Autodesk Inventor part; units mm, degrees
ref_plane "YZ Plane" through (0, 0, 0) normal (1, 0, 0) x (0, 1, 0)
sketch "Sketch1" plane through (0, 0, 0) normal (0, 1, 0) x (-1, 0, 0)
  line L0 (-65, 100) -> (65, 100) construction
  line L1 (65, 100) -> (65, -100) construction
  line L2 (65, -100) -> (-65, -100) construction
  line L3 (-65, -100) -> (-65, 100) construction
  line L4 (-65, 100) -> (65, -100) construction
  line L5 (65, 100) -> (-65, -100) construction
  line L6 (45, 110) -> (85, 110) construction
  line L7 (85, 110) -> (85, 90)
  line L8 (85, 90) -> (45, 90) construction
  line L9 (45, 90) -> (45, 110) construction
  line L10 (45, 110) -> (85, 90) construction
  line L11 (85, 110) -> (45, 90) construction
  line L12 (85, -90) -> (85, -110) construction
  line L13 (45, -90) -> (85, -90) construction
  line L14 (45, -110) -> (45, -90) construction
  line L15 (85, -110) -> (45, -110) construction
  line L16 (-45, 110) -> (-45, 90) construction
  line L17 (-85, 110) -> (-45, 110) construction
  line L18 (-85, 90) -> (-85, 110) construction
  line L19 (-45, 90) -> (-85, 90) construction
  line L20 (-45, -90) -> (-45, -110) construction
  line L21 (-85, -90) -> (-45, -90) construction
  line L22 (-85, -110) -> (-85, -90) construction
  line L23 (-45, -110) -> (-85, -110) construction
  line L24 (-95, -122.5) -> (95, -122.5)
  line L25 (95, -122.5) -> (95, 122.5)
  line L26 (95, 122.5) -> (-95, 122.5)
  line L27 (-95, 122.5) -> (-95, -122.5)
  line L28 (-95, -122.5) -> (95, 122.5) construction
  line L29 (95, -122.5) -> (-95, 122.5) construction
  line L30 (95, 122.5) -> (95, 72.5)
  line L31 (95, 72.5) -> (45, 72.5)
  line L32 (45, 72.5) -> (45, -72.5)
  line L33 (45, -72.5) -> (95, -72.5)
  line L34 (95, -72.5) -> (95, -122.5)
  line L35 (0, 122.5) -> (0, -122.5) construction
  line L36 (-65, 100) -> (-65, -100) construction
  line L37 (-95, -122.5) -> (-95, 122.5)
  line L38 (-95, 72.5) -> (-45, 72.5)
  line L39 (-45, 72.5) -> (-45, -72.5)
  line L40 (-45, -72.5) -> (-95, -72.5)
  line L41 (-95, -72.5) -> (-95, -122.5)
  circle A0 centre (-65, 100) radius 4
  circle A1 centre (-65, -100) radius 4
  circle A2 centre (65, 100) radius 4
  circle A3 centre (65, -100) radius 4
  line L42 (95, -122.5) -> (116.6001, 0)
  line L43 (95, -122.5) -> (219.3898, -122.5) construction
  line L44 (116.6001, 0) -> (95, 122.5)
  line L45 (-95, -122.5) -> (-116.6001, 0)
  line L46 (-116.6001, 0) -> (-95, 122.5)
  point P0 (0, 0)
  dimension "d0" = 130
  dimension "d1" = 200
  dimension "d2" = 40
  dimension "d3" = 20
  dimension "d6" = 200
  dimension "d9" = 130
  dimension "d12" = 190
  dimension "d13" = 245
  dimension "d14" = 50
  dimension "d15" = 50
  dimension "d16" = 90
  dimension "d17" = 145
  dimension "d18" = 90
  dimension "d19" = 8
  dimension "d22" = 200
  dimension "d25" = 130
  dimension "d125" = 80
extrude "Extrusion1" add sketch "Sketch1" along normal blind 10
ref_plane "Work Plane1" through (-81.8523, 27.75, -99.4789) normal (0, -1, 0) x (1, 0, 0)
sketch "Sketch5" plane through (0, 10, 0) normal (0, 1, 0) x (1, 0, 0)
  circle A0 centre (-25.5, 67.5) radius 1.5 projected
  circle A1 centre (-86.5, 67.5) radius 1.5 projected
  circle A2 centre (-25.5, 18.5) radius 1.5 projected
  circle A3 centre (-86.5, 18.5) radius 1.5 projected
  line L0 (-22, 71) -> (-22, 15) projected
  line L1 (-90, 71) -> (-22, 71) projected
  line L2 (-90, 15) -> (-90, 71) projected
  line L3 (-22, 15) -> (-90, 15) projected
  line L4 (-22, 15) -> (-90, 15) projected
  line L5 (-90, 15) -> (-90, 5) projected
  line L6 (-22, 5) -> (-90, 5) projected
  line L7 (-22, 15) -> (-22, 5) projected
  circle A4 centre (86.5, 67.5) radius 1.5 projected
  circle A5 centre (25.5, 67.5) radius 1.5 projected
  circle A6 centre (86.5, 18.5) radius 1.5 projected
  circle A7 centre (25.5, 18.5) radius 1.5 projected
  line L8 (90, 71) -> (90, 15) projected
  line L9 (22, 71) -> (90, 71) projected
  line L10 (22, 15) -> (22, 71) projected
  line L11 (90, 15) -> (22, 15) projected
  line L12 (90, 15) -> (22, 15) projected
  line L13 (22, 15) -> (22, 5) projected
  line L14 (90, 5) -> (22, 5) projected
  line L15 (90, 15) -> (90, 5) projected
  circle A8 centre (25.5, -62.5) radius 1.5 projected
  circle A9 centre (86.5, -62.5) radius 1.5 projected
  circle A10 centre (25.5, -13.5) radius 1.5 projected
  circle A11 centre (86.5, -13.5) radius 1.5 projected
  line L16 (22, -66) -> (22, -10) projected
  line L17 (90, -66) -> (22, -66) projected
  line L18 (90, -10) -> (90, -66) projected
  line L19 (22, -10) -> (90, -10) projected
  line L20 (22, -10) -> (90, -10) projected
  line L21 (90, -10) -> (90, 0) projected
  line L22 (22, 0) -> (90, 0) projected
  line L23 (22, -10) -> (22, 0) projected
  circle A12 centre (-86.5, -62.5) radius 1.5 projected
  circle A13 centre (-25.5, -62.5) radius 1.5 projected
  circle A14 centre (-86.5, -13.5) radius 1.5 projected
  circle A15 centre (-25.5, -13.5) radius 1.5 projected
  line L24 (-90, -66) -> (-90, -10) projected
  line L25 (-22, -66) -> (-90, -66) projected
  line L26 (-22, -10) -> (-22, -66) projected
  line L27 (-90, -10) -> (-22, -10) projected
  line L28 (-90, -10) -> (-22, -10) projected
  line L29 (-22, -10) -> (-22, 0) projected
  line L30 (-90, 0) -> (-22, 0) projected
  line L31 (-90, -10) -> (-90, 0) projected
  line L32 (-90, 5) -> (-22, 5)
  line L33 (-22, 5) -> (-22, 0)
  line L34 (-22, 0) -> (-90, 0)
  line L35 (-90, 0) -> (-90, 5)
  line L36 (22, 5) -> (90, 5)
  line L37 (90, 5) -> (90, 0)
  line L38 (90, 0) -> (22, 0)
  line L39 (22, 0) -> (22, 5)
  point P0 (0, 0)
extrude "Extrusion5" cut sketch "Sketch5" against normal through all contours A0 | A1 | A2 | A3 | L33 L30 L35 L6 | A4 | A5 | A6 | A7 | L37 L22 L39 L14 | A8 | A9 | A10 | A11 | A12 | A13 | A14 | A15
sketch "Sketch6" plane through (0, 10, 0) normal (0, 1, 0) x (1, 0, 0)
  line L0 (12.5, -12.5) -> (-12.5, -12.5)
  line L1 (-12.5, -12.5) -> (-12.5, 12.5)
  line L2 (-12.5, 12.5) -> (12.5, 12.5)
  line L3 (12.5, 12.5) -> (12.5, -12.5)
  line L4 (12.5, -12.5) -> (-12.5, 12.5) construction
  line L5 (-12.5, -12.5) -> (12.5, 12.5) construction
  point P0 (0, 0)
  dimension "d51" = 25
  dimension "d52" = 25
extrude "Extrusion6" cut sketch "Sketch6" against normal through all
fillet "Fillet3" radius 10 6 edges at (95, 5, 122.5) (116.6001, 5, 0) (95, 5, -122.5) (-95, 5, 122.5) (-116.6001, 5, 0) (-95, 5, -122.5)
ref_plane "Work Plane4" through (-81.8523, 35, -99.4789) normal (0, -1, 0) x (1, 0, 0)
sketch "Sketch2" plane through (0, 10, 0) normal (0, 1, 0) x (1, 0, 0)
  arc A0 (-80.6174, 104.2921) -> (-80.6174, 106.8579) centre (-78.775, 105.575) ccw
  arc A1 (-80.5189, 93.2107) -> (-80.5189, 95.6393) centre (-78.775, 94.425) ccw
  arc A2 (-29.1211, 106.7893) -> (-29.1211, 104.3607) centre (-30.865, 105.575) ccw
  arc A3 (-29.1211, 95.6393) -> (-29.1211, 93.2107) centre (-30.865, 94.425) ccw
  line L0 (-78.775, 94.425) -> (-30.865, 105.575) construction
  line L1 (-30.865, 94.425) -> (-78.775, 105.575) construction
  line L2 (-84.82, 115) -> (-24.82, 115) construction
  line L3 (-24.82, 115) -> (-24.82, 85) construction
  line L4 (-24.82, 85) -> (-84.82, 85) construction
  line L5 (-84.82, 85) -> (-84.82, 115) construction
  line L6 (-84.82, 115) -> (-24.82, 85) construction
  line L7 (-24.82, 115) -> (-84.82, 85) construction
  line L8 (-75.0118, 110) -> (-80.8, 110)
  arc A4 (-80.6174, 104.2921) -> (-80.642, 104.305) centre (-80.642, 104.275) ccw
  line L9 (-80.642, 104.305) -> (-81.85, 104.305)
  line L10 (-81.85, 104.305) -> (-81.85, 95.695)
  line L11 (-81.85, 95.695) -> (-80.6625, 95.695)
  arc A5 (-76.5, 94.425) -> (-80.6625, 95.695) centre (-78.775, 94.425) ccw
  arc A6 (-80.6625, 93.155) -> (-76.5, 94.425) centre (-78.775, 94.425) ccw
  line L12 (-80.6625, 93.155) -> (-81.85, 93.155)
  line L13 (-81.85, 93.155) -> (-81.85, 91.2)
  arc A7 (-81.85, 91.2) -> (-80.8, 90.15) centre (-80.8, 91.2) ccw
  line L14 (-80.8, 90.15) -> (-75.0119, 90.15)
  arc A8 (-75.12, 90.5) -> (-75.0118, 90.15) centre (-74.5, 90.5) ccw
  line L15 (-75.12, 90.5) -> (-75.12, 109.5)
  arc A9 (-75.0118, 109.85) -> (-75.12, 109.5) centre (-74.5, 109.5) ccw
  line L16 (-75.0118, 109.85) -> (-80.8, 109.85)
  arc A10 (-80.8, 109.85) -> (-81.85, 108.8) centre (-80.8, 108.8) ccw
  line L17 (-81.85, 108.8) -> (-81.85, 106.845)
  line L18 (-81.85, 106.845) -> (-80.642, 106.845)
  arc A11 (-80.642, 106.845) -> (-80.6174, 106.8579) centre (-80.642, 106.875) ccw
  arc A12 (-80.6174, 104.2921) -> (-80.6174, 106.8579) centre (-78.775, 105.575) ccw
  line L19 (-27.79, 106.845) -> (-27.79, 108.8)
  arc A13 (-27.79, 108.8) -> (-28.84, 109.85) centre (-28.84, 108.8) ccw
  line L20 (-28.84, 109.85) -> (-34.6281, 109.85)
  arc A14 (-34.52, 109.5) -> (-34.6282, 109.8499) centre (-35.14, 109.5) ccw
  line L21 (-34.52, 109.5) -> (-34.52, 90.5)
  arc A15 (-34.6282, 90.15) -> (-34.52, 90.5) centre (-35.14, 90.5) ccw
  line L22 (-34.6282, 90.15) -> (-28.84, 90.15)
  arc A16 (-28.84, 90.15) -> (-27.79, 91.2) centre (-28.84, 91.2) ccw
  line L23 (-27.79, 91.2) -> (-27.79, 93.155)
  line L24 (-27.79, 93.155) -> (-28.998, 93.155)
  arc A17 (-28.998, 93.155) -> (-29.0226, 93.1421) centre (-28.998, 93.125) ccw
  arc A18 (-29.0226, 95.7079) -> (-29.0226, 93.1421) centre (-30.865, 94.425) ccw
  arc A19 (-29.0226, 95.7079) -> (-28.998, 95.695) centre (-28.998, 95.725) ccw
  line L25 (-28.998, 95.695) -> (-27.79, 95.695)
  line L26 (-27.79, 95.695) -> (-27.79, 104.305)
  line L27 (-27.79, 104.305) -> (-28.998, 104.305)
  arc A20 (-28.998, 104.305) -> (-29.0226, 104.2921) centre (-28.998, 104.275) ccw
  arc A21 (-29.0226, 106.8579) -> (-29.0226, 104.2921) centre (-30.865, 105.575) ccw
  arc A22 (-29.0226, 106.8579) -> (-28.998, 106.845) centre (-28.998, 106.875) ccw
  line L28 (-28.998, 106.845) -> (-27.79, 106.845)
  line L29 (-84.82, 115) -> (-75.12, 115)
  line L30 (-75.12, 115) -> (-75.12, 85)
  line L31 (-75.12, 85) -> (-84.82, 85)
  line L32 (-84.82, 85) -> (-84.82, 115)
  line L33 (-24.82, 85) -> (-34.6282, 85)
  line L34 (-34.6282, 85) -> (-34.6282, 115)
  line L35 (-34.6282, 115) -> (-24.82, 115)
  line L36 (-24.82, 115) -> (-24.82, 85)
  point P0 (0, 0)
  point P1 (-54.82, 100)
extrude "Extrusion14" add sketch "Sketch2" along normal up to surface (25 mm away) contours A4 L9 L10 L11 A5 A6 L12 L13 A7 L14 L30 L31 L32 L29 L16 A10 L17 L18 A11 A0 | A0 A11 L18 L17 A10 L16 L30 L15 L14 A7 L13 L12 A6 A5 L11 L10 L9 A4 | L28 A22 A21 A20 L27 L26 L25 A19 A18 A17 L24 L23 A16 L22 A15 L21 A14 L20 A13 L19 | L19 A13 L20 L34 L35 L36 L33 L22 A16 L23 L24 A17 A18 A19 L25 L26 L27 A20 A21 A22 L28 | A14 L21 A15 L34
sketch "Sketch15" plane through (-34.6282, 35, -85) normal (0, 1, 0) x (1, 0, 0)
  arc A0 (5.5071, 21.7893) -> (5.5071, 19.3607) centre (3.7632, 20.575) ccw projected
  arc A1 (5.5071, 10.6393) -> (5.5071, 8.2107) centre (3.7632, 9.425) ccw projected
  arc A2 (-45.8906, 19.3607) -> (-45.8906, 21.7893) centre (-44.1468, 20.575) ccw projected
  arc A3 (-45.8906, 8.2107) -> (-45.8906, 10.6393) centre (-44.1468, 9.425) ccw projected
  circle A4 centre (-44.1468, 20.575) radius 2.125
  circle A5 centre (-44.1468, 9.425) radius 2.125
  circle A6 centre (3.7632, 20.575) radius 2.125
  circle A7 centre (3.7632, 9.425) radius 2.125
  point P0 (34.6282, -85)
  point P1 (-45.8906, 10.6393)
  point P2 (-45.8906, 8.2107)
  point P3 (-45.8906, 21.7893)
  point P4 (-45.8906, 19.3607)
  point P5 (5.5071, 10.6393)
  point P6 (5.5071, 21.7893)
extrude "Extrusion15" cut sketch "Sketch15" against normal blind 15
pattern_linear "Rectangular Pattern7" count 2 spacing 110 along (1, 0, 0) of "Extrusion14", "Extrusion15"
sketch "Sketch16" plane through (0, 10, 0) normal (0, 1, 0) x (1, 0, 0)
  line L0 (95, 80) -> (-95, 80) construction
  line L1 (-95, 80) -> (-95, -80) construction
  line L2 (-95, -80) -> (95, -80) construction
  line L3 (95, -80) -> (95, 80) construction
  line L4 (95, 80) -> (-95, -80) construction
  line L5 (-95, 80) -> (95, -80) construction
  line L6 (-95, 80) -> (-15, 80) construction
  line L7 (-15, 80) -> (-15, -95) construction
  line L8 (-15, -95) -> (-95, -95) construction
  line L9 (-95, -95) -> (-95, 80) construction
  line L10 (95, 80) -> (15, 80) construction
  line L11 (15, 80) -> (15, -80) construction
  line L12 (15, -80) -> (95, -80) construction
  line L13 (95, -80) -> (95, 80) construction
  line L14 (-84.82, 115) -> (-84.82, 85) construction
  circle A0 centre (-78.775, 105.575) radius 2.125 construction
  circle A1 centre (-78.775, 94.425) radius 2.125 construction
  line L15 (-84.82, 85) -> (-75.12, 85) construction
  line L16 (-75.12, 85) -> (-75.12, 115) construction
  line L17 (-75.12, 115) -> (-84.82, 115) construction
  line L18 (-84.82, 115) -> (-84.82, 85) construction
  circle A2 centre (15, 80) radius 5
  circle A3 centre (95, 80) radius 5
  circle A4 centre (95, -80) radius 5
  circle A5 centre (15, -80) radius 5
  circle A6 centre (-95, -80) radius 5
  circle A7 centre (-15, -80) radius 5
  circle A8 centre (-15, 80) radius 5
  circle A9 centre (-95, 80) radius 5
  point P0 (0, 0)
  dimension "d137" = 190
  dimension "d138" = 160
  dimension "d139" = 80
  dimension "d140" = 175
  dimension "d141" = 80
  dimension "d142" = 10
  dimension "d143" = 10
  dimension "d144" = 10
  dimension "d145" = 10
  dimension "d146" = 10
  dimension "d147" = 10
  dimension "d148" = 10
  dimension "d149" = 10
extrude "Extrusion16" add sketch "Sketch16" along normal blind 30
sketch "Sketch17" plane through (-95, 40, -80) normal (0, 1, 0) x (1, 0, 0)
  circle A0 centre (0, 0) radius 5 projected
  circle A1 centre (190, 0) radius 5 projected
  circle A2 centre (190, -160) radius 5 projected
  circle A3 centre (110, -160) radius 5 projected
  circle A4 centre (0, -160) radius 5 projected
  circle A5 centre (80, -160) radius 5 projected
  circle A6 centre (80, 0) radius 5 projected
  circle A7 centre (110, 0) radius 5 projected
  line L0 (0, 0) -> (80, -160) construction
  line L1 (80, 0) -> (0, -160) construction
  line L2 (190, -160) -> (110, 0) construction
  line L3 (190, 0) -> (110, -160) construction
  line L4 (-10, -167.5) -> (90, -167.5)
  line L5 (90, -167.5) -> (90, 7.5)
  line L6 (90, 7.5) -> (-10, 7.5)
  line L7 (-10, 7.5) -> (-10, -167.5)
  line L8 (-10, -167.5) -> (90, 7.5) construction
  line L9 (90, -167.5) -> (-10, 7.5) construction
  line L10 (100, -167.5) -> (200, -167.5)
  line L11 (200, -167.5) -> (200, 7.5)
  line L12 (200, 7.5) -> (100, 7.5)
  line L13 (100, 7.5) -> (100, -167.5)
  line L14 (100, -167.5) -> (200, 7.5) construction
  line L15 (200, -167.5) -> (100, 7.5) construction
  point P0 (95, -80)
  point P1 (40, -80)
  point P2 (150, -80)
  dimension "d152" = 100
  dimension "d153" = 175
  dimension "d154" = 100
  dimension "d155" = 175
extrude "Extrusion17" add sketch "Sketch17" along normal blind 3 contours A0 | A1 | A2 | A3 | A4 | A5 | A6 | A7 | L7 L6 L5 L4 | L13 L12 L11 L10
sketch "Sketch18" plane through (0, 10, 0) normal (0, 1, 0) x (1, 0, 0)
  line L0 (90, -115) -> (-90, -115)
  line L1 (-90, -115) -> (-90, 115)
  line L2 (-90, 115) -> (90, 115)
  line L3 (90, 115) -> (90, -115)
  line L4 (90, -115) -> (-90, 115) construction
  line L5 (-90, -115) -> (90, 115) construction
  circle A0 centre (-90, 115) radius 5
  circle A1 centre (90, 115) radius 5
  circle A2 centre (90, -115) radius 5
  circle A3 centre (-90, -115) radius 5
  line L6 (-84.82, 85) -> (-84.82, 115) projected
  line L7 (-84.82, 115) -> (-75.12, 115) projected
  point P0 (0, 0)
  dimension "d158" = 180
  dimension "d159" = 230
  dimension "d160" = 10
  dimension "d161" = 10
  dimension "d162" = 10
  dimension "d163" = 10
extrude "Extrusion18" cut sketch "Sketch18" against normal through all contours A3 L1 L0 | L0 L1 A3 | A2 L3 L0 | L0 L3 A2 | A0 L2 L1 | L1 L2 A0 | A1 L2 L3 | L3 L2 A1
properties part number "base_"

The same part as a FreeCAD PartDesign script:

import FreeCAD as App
import Part
import Sketcher
Q = App.Units.Quantity


def edges_at(feature, points):
    """Names of the edges that pass closest to the given points."""
    edges = feature.Shape.Edges
    near = lambda p: min(range(len(edges)), key=lambda i: edges[i].distToShape(Part.Vertex(*p))[0])
    return sorted({f"Edge{near(p) + 1}" for p in points})

doc = App.newDocument("Part")
body = doc.addObject("PartDesign::Body", "Body")

# Sketch on XZ plane
sketch1 = body.newObject("Sketcher::SketchObject", "Sketch")
sketch1.AttachmentSupport = (doc.getObject("XZ_Plane"), [""])
sketch1.MapMode = "FlatFace"
sketch1.addGeometry(Part.LineSegment(App.Vector(-95, 122.5, 0), App.Vector(95, 122.5, 0)), False)
sketch1.addGeometry(Part.LineSegment(App.Vector(95, 122.5, 0), App.Vector(116.6001, 0, 0)), False)
sketch1.addGeometry(Part.LineSegment(App.Vector(116.6001, 0, 0), App.Vector(95, -122.5, 0)), False)
sketch1.addGeometry(Part.LineSegment(App.Vector(95, -122.5, 0), App.Vector(-95, -122.5, 0)), False)
sketch1.addGeometry(Part.LineSegment(App.Vector(-95, -122.5, 0), App.Vector(-116.6001, 0, 0)), False)
sketch1.addGeometry(Part.LineSegment(App.Vector(-116.6001, 0, 0), App.Vector(-95, 122.5, 0)), False)
sketch1.addGeometry(Part.Circle(App.Vector(65, -100, 0), App.Vector(0, 0, 1), 4), False)
sketch1.addGeometry(Part.Circle(App.Vector(-65, -100, 0), App.Vector(0, 0, 1), 4), False)
sketch1.addGeometry(Part.Circle(App.Vector(65, 100, 0), App.Vector(0, 0, 1), 4), False)
sketch1.addGeometry(Part.Circle(App.Vector(-65, 100, 0), App.Vector(0, 0, 1), 4), False)
sketch1.addConstraint(Sketcher.Constraint("Coincident", 0, 2, 1, 1))
sketch1.addConstraint(Sketcher.Constraint("Coincident", 1, 2, 2, 1))
sketch1.addConstraint(Sketcher.Constraint("Coincident", 2, 2, 3, 1))
sketch1.addConstraint(Sketcher.Constraint("Coincident", 3, 2, 4, 1))
sketch1.addConstraint(Sketcher.Constraint("Coincident", 4, 2, 5, 1))
sketch1.addConstraint(Sketcher.Constraint("Coincident", 5, 2, 0, 1))
sketch1.addConstraint(Sketcher.Constraint("Horizontal", 0))
sketch1.addConstraint(Sketcher.Constraint("Horizontal", 3))
sketch1.addConstraint(Sketcher.Constraint("Equal", 6, 7))
sketch1.addConstraint(Sketcher.Constraint("Equal", 7, 8))
sketch1.addConstraint(Sketcher.Constraint("Equal", 8, 9))
sketch1.addConstraint(Sketcher.Constraint("Symmetric", 7, 3, 8, 3, -1, 1))
sketch1.addConstraint(Sketcher.Constraint("Symmetric", 6, 3, 9, 3, -1, 1))
sketch1.addConstraint(Sketcher.Constraint("Symmetric", 0, 2, 3, 2, -1, 1))
sketch1.addConstraint(Sketcher.Constraint("Symmetric", 1, 2, 4, 2, -1, 1))
sketch1.addConstraint(Sketcher.Constraint("Symmetric", 6, 3, 7, 3, -2))
sketch1.addConstraint(Sketcher.Constraint("PointOnObject", 1, 2, -1))
sketch1.addConstraint(Sketcher.Constraint("Parallel", 2, 5))
sketch1.addConstraint(Sketcher.Constraint("Vertical", 0, 2, 2, 2))
sketch1.addConstraint(Sketcher.Constraint("Diameter", 6, Q("8 mm")))
sketch1.addConstraint(Sketcher.Constraint("DistanceX", 0, 1, 0, 2, Q("190 mm")))
sketch1.addConstraint(Sketcher.Constraint("Angle", 1, Q("-80 deg")))
sketch1.addConstraint(Sketcher.Constraint("DistanceX", 7, 3, 6, 3, Q("130 mm")))
sketch1.addConstraint(Sketcher.Constraint("DistanceY", 6, 3, 8, 3, Q("200 mm")))
sketch1.addConstraint(Sketcher.Constraint("DistanceY", 2, 2, 0, 2, Q("245 mm")))
pad1 = body.newObject("PartDesign::Pad", "Pad")
pad1.Profile = sketch1
pad1.Length = 10
pad1.Reversed = True

# Sketch on XZ plane
sketch2 = body.newObject("Sketcher::SketchObject", "Sketch001")
sketch2.AttachmentSupport = (doc.getObject("XZ_Plane"), [""])
sketch2.MapMode = "FlatFace"
sketch2.AttachmentOffset = App.Placement(App.Vector(0, 0, -10), App.Rotation())
sketch2.addGeometry(Part.Circle(App.Vector(-25.5, -67.5, 0), App.Vector(0, 0, 1), 1.5), False)
sketch2.addGeometry(Part.Circle(App.Vector(-86.5, -67.5, 0), App.Vector(0, 0, 1), 1.5), False)
sketch2.addGeometry(Part.Circle(App.Vector(-25.5, -18.5, 0), App.Vector(0, 0, 1), 1.5), False)
sketch2.addGeometry(Part.Circle(App.Vector(-86.5, -18.5, 0), App.Vector(0, 0, 1), 1.5), False)
sketch2.addGeometry(Part.LineSegment(App.Vector(-22, 0, 0), App.Vector(-22, -5, 0)), False)
sketch2.addGeometry(Part.LineSegment(App.Vector(-22, -5, 0), App.Vector(-90, -5, 0)), False)
sketch2.addGeometry(Part.LineSegment(App.Vector(-90, -5, 0), App.Vector(-90, 0, 0)), False)
sketch2.addGeometry(Part.LineSegment(App.Vector(-90, 0, 0), App.Vector(-22, 0, 0)), False)
sketch2.addGeometry(Part.Circle(App.Vector(86.5, -67.5, 0), App.Vector(0, 0, 1), 1.5), False)
sketch2.addGeometry(Part.Circle(App.Vector(25.5, -67.5, 0), App.Vector(0, 0, 1), 1.5), False)
sketch2.addGeometry(Part.Circle(App.Vector(86.5, -18.5, 0), App.Vector(0, 0, 1), 1.5), False)
sketch2.addGeometry(Part.Circle(App.Vector(25.5, -18.5, 0), App.Vector(0, 0, 1), 1.5), False)
sketch2.addGeometry(Part.LineSegment(App.Vector(90, 0, 0), App.Vector(90, -5, 0)), False)
sketch2.addGeometry(Part.LineSegment(App.Vector(90, -5, 0), App.Vector(22, -5, 0)), False)
sketch2.addGeometry(Part.LineSegment(App.Vector(22, -5, 0), App.Vector(22, 0, 0)), False)
sketch2.addGeometry(Part.LineSegment(App.Vector(22, 0, 0), App.Vector(90, 0, 0)), False)
sketch2.addGeometry(Part.Circle(App.Vector(25.5, 62.5, 0), App.Vector(0, 0, 1), 1.5), False)
sketch2.addGeometry(Part.Circle(App.Vector(86.5, 62.5, 0), App.Vector(0, 0, 1), 1.5), False)
sketch2.addGeometry(Part.Circle(App.Vector(25.5, 13.5, 0), App.Vector(0, 0, 1), 1.5), False)
sketch2.addGeometry(Part.Circle(App.Vector(86.5, 13.5, 0), App.Vector(0, 0, 1), 1.5), False)
sketch2.addGeometry(Part.Circle(App.Vector(-86.5, 62.5, 0), App.Vector(0, 0, 1), 1.5), False)
sketch2.addGeometry(Part.Circle(App.Vector(-25.5, 62.5, 0), App.Vector(0, 0, 1), 1.5), False)
sketch2.addGeometry(Part.Circle(App.Vector(-86.5, 13.5, 0), App.Vector(0, 0, 1), 1.5), False)
sketch2.addGeometry(Part.Circle(App.Vector(-25.5, 13.5, 0), App.Vector(0, 0, 1), 1.5), False)
sketch2.addConstraint(Sketcher.Constraint("Coincident", 4, 2, 5, 1))
sketch2.addConstraint(Sketcher.Constraint("Coincident", 5, 2, 6, 1))
sketch2.addConstraint(Sketcher.Constraint("Coincident", 6, 2, 7, 1))
sketch2.addConstraint(Sketcher.Constraint("Coincident", 7, 2, 4, 1))
sketch2.addConstraint(Sketcher.Constraint("Coincident", 12, 2, 13, 1))
sketch2.addConstraint(Sketcher.Constraint("Coincident", 13, 2, 14, 1))
sketch2.addConstraint(Sketcher.Constraint("Coincident", 14, 2, 15, 1))
sketch2.addConstraint(Sketcher.Constraint("Coincident", 15, 2, 12, 1))
sketch2.addConstraint(Sketcher.Constraint("Vertical", 4))
sketch2.addConstraint(Sketcher.Constraint("Horizontal", 5))
sketch2.addConstraint(Sketcher.Constraint("Vertical", 6))
sketch2.addConstraint(Sketcher.Constraint("Horizontal", 7))
sketch2.addConstraint(Sketcher.Constraint("Vertical", 12))
sketch2.addConstraint(Sketcher.Constraint("Horizontal", 13))
sketch2.addConstraint(Sketcher.Constraint("Vertical", 14))
sketch2.addConstraint(Sketcher.Constraint("Horizontal", 15))
sketch2.addConstraint(Sketcher.Constraint("Equal", 0, 1))
sketch2.addConstraint(Sketcher.Constraint("Equal", 1, 2))
sketch2.addConstraint(Sketcher.Constraint("Equal", 2, 3))
sketch2.addConstraint(Sketcher.Constraint("Equal", 3, 8))
sketch2.addConstraint(Sketcher.Constraint("Equal", 8, 9))
sketch2.addConstraint(Sketcher.Constraint("Equal", 9, 10))
sketch2.addConstraint(Sketcher.Constraint("Equal", 10, 11))
sketch2.addConstraint(Sketcher.Constraint("Equal", 11, 16))
sketch2.addConstraint(Sketcher.Constraint("Equal", 16, 17))
sketch2.addConstraint(Sketcher.Constraint("Equal", 17, 18))
sketch2.addConstraint(Sketcher.Constraint("Equal", 18, 19))
sketch2.addConstraint(Sketcher.Constraint("Equal", 19, 20))
sketch2.addConstraint(Sketcher.Constraint("Equal", 20, 21))
sketch2.addConstraint(Sketcher.Constraint("Equal", 21, 22))
sketch2.addConstraint(Sketcher.Constraint("Equal", 22, 23))
sketch2.addConstraint(Sketcher.Constraint("Symmetric", 7, 2, 14, 2, -1, 1))
sketch2.addConstraint(Sketcher.Constraint("Symmetric", 1, 3, 8, 3, -2))
sketch2.addConstraint(Sketcher.Constraint("Symmetric", 0, 3, 9, 3, -2))
sketch2.addConstraint(Sketcher.Constraint("Symmetric", 3, 3, 10, 3, -2))
sketch2.addConstraint(Sketcher.Constraint("Symmetric", 2, 3, 11, 3, -2))
sketch2.addConstraint(Sketcher.Constraint("Symmetric", 17, 3, 20, 3, -2))
sketch2.addConstraint(Sketcher.Constraint("Symmetric", 16, 3, 21, 3, -2))
sketch2.addConstraint(Sketcher.Constraint("Symmetric", 19, 3, 22, 3, -2))
sketch2.addConstraint(Sketcher.Constraint("Symmetric", 18, 3, 23, 3, -2))
sketch2.addConstraint(Sketcher.Constraint("Symmetric", 5, 2, 12, 2, -2))
sketch2.addConstraint(Sketcher.Constraint("PointOnObject", 6, 2, -1))
sketch2.addConstraint(Sketcher.Constraint("Horizontal", 0, 3, 1, 3))
sketch2.addConstraint(Sketcher.Constraint("Horizontal", 2, 3, 3, 3))
sketch2.addConstraint(Sketcher.Constraint("Horizontal", 16, 3, 17, 3))
sketch2.addConstraint(Sketcher.Constraint("Horizontal", 18, 3, 19, 3))
sketch2.addConstraint(Sketcher.Constraint("Vertical", 0, 3, 2, 3))
sketch2.addConstraint(Sketcher.Constraint("Vertical", 1, 3, 3, 3))
sketch2.addConstraint(Sketcher.Constraint("Vertical", 11, 3, 16, 3))
sketch2.addConstraint(Sketcher.Constraint("Vertical", 10, 3, 17, 3))
sketch2.addConstraint(Sketcher.Constraint("Vertical", 16, 3, 18, 3))
sketch2.addConstraint(Sketcher.Constraint("Vertical", 17, 3, 19, 3))
sketch2.addConstraint(Sketcher.Constraint("Diameter", 0, Q("3 mm")))
sketch2.addConstraint(Sketcher.Constraint("DistanceX", 5, 2, 5, 1, Q("68 mm")))
sketch2.addConstraint(Sketcher.Constraint("DistanceY", 4, 2, 4, 1, Q("5 mm")))
sketch2.addConstraint(Sketcher.Constraint("DistanceX", 4, 2, -1, 1, Q("22 mm")))
sketch2.addConstraint(Sketcher.Constraint("DistanceX", 1, 3, 0, 3, Q("61 mm")))
sketch2.addConstraint(Sketcher.Constraint("DistanceY", 0, 3, 2, 3, Q("49 mm")))
sketch2.addConstraint(Sketcher.Constraint("DistanceX", 0, 3, 8, 3, Q("112 mm")))
sketch2.addConstraint(Sketcher.Constraint("DistanceY", 11, 3, 16, 3, Q("81 mm")))
sketch2.addConstraint(Sketcher.Constraint("DistanceY", 11, 3, 18, 3, Q("32 mm")))
sketch2.addConstraint(Sketcher.Constraint("DistanceY", 0, 3, -1, 1, Q("67.5 mm")))
pocket1 = body.newObject("PartDesign::Pocket", "Pocket")
pocket1.Profile = sketch2
pocket1.Type = "ThroughAll"
pocket1.Reversed = True

# Sketch on XZ plane
sketch3 = body.newObject("Sketcher::SketchObject", "Sketch002")
sketch3.AttachmentSupport = (doc.getObject("XZ_Plane"), [""])
sketch3.MapMode = "FlatFace"
sketch3.AttachmentOffset = App.Placement(App.Vector(0, 0, -10), App.Rotation())
sketch3.addGeometry(Part.LineSegment(App.Vector(-12.5, 12.5, 0), App.Vector(12.5, 12.5, 0)), False)
sketch3.addGeometry(Part.LineSegment(App.Vector(12.5, 12.5, 0), App.Vector(12.5, -12.5, 0)), False)
sketch3.addGeometry(Part.LineSegment(App.Vector(12.5, -12.5, 0), App.Vector(-12.5, -12.5, 0)), False)
sketch3.addGeometry(Part.LineSegment(App.Vector(-12.5, -12.5, 0), App.Vector(-12.5, 12.5, 0)), False)
sketch3.addConstraint(Sketcher.Constraint("Coincident", 0, 2, 1, 1))
sketch3.addConstraint(Sketcher.Constraint("Coincident", 1, 2, 2, 1))
sketch3.addConstraint(Sketcher.Constraint("Coincident", 2, 2, 3, 1))
sketch3.addConstraint(Sketcher.Constraint("Coincident", 3, 2, 0, 1))
sketch3.addConstraint(Sketcher.Constraint("Horizontal", 0))
sketch3.addConstraint(Sketcher.Constraint("Vertical", 1))
sketch3.addConstraint(Sketcher.Constraint("Horizontal", 2))
sketch3.addConstraint(Sketcher.Constraint("Vertical", 3))
sketch3.addConstraint(Sketcher.Constraint("Symmetric", 0, 2, 2, 2, -1, 1))
sketch3.addConstraint(Sketcher.Constraint("Equal", 2, 1))
sketch3.addConstraint(Sketcher.Constraint("DistanceX", 0, 1, 0, 2, Q("25 mm")))
pocket2 = body.newObject("PartDesign::Pocket", "Pocket001")
pocket2.Profile = sketch3
pocket2.Type = "ThroughAll"
pocket2.Reversed = True
doc.recompute()

fillet = body.newObject("PartDesign::Fillet", "Fillet")
fillet.Base = (pocket2, edges_at(pocket2, [
    (95, 5, 122.5),
    (116.6, 5, 0),
    (95, 5, -122.5),
    (-95, 5, 122.5),
    (-116.6, 5, 0),
    (-95, 5, -122.5),
]))
fillet.Radius = 10

# Sketch on XZ plane
sketch4 = body.newObject("Sketcher::SketchObject", "Sketch003")
sketch4.AttachmentSupport = (doc.getObject("XZ_Plane"), [""])
sketch4.MapMode = "FlatFace"
sketch4.AttachmentOffset = App.Placement(App.Vector(0, 0, -10), App.Rotation())
sketch4.addGeometry(Part.LineSegment(App.Vector(-75.12, -85, 0), App.Vector(-75.12, -115, 0)), False)
sketch4.addGeometry(Part.LineSegment(App.Vector(-75.12, -115, 0), App.Vector(-84.82, -115, 0)), False)
sketch4.addGeometry(Part.LineSegment(App.Vector(-84.82, -115, 0), App.Vector(-84.82, -85, 0)), False)
sketch4.addGeometry(Part.LineSegment(App.Vector(-84.82, -85, 0), App.Vector(-75.12, -85, 0)), False)
sketch4.addGeometry(Part.LineSegment(App.Vector(-24.82, -85, 0), App.Vector(-24.82, -115, 0)), False)
sketch4.addGeometry(Part.LineSegment(App.Vector(-24.82, -115, 0), App.Vector(-34.6282, -115, 0)), False)
sketch4.addGeometry(Part.LineSegment(App.Vector(-34.6282, -115, 0), App.Vector(-34.6282, -85, 0)), False)
sketch4.addGeometry(Part.LineSegment(App.Vector(-34.6282, -85, 0), App.Vector(-24.82, -85, 0)), False)
sketch4.addConstraint(Sketcher.Constraint("Coincident", 0, 2, 1, 1))
sketch4.addConstraint(Sketcher.Constraint("Coincident", 1, 2, 2, 1))
sketch4.addConstraint(Sketcher.Constraint("Coincident", 2, 2, 3, 1))
sketch4.addConstraint(Sketcher.Constraint("Coincident", 3, 2, 0, 1))
sketch4.addConstraint(Sketcher.Constraint("Coincident", 4, 2, 5, 1))
sketch4.addConstraint(Sketcher.Constraint("Coincident", 5, 2, 6, 1))
sketch4.addConstraint(Sketcher.Constraint("Coincident", 6, 2, 7, 1))
sketch4.addConstraint(Sketcher.Constraint("Coincident", 7, 2, 4, 1))
sketch4.addConstraint(Sketcher.Constraint("Vertical", 0))
sketch4.addConstraint(Sketcher.Constraint("Horizontal", 1))
sketch4.addConstraint(Sketcher.Constraint("Vertical", 2))
sketch4.addConstraint(Sketcher.Constraint("Horizontal", 3))
sketch4.addConstraint(Sketcher.Constraint("Vertical", 4))
sketch4.addConstraint(Sketcher.Constraint("Horizontal", 5))
sketch4.addConstraint(Sketcher.Constraint("Vertical", 6))
sketch4.addConstraint(Sketcher.Constraint("Horizontal", 7))
sketch4.addConstraint(Sketcher.Constraint("Horizontal", 1, 2, 4, 2))
sketch4.addConstraint(Sketcher.Constraint("Horizontal", 3, 2, 6, 2))
sketch4.addConstraint(Sketcher.Constraint("DistanceY", 0, 2, 0, 1, Q("30 mm")))
sketch4.addConstraint(Sketcher.Constraint("DistanceX", 1, 2, 1, 1, Q("9.7 mm")))
sketch4.addConstraint(Sketcher.Constraint("DistanceY", 0, 2, -1, 1, Q("115 mm")))
sketch4.addConstraint(Sketcher.Constraint("DistanceX", 1, 2, 4, 2, Q("60 mm")))
sketch4.addConstraint(Sketcher.Constraint("DistanceX", 0, 2, -1, 1, Q("75.12 mm")))
sketch4.addConstraint(Sketcher.Constraint("DistanceX", 5, 2, 5, 1, Q("9.8082 mm")))
pad2 = body.newObject("PartDesign::Pad", "Pad001")
pad2.Profile = sketch4
pad2.Length = 25
pad2.Reversed = True

# Sketch on XZ plane
sketch5 = body.newObject("Sketcher::SketchObject", "Sketch004")
sketch5.AttachmentSupport = (doc.getObject("XZ_Plane"), [""])
sketch5.MapMode = "FlatFace"
sketch5.AttachmentOffset = App.Placement(App.Vector(0, 0, -35), App.Rotation())
sketch5.addGeometry(Part.Circle(App.Vector(-30.865, -105.575, 0), App.Vector(0, 0, 1), 2.12502), False)
sketch5.addGeometry(Part.Circle(App.Vector(-30.865, -94.425, 0), App.Vector(0, 0, 1), 2.12502), False)
sketch5.addGeometry(Part.Circle(App.Vector(-78.775, -105.575, 0), App.Vector(0, 0, 1), 2.124938), False)
sketch5.addGeometry(Part.Circle(App.Vector(-78.775, -94.425, 0), App.Vector(0, 0, 1), 2.124938), False)
sketch5.addConstraint(Sketcher.Constraint("Equal", 0, 1))
sketch5.addConstraint(Sketcher.Constraint("Equal", 1, 2))
sketch5.addConstraint(Sketcher.Constraint("Equal", 2, 3))
sketch5.addConstraint(Sketcher.Constraint("Horizontal", 0, 3, 2, 3))
sketch5.addConstraint(Sketcher.Constraint("Horizontal", 1, 3, 3, 3))
sketch5.addConstraint(Sketcher.Constraint("Vertical", 0, 3, 1, 3))
sketch5.addConstraint(Sketcher.Constraint("Vertical", 2, 3, 3, 3))
sketch5.addConstraint(Sketcher.Constraint("Diameter", 0, Q("4.25 mm")))
sketch5.addConstraint(Sketcher.Constraint("DistanceY", 0, 3, 1, 3, Q("11.15 mm")))
sketch5.addConstraint(Sketcher.Constraint("DistanceX", 2, 3, 0, 3, Q("47.91 mm")))
sketch5.addConstraint(Sketcher.Constraint("DistanceX", 0, 3, -1, 1, Q("30.865 mm")))
sketch5.addConstraint(Sketcher.Constraint("DistanceY", 0, 3, -1, 1, Q("105.575 mm")))
pocket3 = body.newObject("PartDesign::Pocket", "Pocket002")
pocket3.Profile = sketch5
pocket3.Length = 15
pocket3.Reversed = True
doc.recompute()

linearpattern = body.newObject("PartDesign::LinearPattern", "LinearPattern")
linearpattern.Originals = [pad2, pocket3]
linearpattern.Direction = (doc.getObject("X_Axis"), [""])
linearpattern.Mode = "offset"
linearpattern.Offset = 110
linearpattern.Occurrences = 2
body.Tip = linearpattern

# Sketch on XZ plane
sketch6 = body.newObject("Sketcher::SketchObject", "Sketch005")
sketch6.AttachmentSupport = (doc.getObject("XZ_Plane"), [""])
sketch6.MapMode = "FlatFace"
sketch6.AttachmentOffset = App.Placement(App.Vector(0, 0, -10), App.Rotation())
sketch6.addGeometry(Part.Circle(App.Vector(15, -80, 0), App.Vector(0, 0, 1), 5), False)
sketch6.addGeometry(Part.Circle(App.Vector(95, -80, 0), App.Vector(0, 0, 1), 5), False)
sketch6.addGeometry(Part.Circle(App.Vector(95, 80, 0), App.Vector(0, 0, 1), 5), False)
sketch6.addGeometry(Part.Circle(App.Vector(15, 80, 0), App.Vector(0, 0, 1), 5), False)
sketch6.addGeometry(Part.Circle(App.Vector(-95, 80, 0), App.Vector(0, 0, 1), 5), False)
sketch6.addGeometry(Part.Circle(App.Vector(-15, 80, 0), App.Vector(0, 0, 1), 5), False)
sketch6.addGeometry(Part.Circle(App.Vector(-15, -80, 0), App.Vector(0, 0, 1), 5), False)
sketch6.addGeometry(Part.Circle(App.Vector(-95, -80, 0), App.Vector(0, 0, 1), 5), False)
sketch6.addConstraint(Sketcher.Constraint("Equal", 0, 1))
sketch6.addConstraint(Sketcher.Constraint("Equal", 1, 2))
sketch6.addConstraint(Sketcher.Constraint("Equal", 2, 3))
sketch6.addConstraint(Sketcher.Constraint("Equal", 3, 4))
sketch6.addConstraint(Sketcher.Constraint("Equal", 4, 5))
sketch6.addConstraint(Sketcher.Constraint("Equal", 5, 6))
sketch6.addConstraint(Sketcher.Constraint("Equal", 6, 7))
sketch6.addConstraint(Sketcher.Constraint("Symmetric", 1, 3, 4, 3, -1, 1))
sketch6.addConstraint(Sketcher.Constraint("Symmetric", 0, 3, 5, 3, -1, 1))
sketch6.addConstraint(Sketcher.Constraint("Symmetric", 3, 3, 6, 3, -1, 1))
sketch6.addConstraint(Sketcher.Constraint("Symmetric", 2, 3, 7, 3, -1, 1))
sketch6.addConstraint(Sketcher.Constraint("Symmetric", 2, 3, 4, 3, -2))
sketch6.addConstraint(Sketcher.Constraint("Symmetric", 3, 3, 5, 3, -2))
sketch6.addConstraint(Sketcher.Constraint("Horizontal", 0, 3, 1, 3))
sketch6.addConstraint(Sketcher.Constraint("Diameter", 0, Q("10 mm")))
sketch6.addConstraint(Sketcher.Constraint("DistanceY", 0, 3, -1, 1, Q("80 mm")))
sketch6.addConstraint(Sketcher.Constraint("DistanceX", 0, 3, 1, 3, Q("80 mm")))
sketch6.addConstraint(Sketcher.Constraint("DistanceX", 4, 3, 2, 3, Q("190 mm")))
pad3 = body.newObject("PartDesign::Pad", "Pad002")
pad3.Profile = sketch6
pad3.Length = 30
pad3.Reversed = True

# Sketch on XZ plane
sketch7 = body.newObject("Sketcher::SketchObject", "Sketch006")
sketch7.AttachmentSupport = (doc.getObject("XZ_Plane"), [""])
sketch7.MapMode = "FlatFace"
sketch7.AttachmentOffset = App.Placement(App.Vector(0, 0, -40), App.Rotation())
sketch7.addGeometry(Part.LineSegment(App.Vector(-105, -87.5, 0), App.Vector(-105, 87.5, 0)), False)
sketch7.addGeometry(Part.LineSegment(App.Vector(-105, 87.5, 0), App.Vector(-5, 87.5, 0)), False)
sketch7.addGeometry(Part.LineSegment(App.Vector(-5, 87.5, 0), App.Vector(-5, -87.5, 0)), False)
sketch7.addGeometry(Part.LineSegment(App.Vector(-5, -87.5, 0), App.Vector(-105, -87.5, 0)), False)
sketch7.addGeometry(Part.LineSegment(App.Vector(5, -87.5, 0), App.Vector(5, 87.5, 0)), False)
sketch7.addGeometry(Part.LineSegment(App.Vector(5, 87.5, 0), App.Vector(105, 87.5, 0)), False)
sketch7.addGeometry(Part.LineSegment(App.Vector(105, 87.5, 0), App.Vector(105, -87.5, 0)), False)
sketch7.addGeometry(Part.LineSegment(App.Vector(105, -87.5, 0), App.Vector(5, -87.5, 0)), False)
sketch7.addConstraint(Sketcher.Constraint("Coincident", 0, 2, 1, 1))
sketch7.addConstraint(Sketcher.Constraint("Coincident", 1, 2, 2, 1))
sketch7.addConstraint(Sketcher.Constraint("Coincident", 2, 2, 3, 1))
sketch7.addConstraint(Sketcher.Constraint("Coincident", 3, 2, 0, 1))
sketch7.addConstraint(Sketcher.Constraint("Coincident", 4, 2, 5, 1))
sketch7.addConstraint(Sketcher.Constraint("Coincident", 5, 2, 6, 1))
sketch7.addConstraint(Sketcher.Constraint("Coincident", 6, 2, 7, 1))
sketch7.addConstraint(Sketcher.Constraint("Coincident", 7, 2, 4, 1))
sketch7.addConstraint(Sketcher.Constraint("Vertical", 0))
sketch7.addConstraint(Sketcher.Constraint("Horizontal", 1))
sketch7.addConstraint(Sketcher.Constraint("Vertical", 2))
sketch7.addConstraint(Sketcher.Constraint("Horizontal", 3))
sketch7.addConstraint(Sketcher.Constraint("Vertical", 4))
sketch7.addConstraint(Sketcher.Constraint("Horizontal", 5))
sketch7.addConstraint(Sketcher.Constraint("Vertical", 6))
sketch7.addConstraint(Sketcher.Constraint("Horizontal", 7))
sketch7.addConstraint(Sketcher.Constraint("Symmetric", 2, 2, 4, 2, -1, 1))
sketch7.addConstraint(Sketcher.Constraint("Symmetric", 0, 2, 6, 2, -1, 1))
sketch7.addConstraint(Sketcher.Constraint("Horizontal", 1, 2, 4, 2))
sketch7.addConstraint(Sketcher.Constraint("DistanceX", 1, 1, 1, 2, Q("100 mm")))
sketch7.addConstraint(Sketcher.Constraint("DistanceY", 0, 1, 0, 2, Q("175 mm")))
sketch7.addConstraint(Sketcher.Constraint("DistanceX", 0, 2, -1, 1, Q("105 mm")))
pad4 = body.newObject("PartDesign::Pad", "Pad003")
pad4.Profile = sketch7
pad4.Length = 3
pad4.Reversed = True

# Sketch on XZ plane
sketch8 = body.newObject("Sketcher::SketchObject", "Sketch007")
sketch8.AttachmentSupport = (doc.getObject("XZ_Plane"), [""])
sketch8.MapMode = "FlatFace"
sketch8.AttachmentOffset = App.Placement(App.Vector(0, 0, -10), App.Rotation())
sketch8.addGeometry(Part.Circle(App.Vector(-90, 115, 0), App.Vector(0, 0, 1), 5), False)
sketch8.addGeometry(Part.Circle(App.Vector(90, 115, 0), App.Vector(0, 0, 1), 5), False)
sketch8.addGeometry(Part.Circle(App.Vector(-90, -115, 0), App.Vector(0, 0, 1), 5), False)
sketch8.addGeometry(Part.Circle(App.Vector(90, -115, 0), App.Vector(0, 0, 1), 5), False)
sketch8.addConstraint(Sketcher.Constraint("Equal", 0, 1))
sketch8.addConstraint(Sketcher.Constraint("Equal", 1, 2))
sketch8.addConstraint(Sketcher.Constraint("Equal", 2, 3))
sketch8.addConstraint(Sketcher.Constraint("Symmetric", 1, 3, 2, 3, -1, 1))
sketch8.addConstraint(Sketcher.Constraint("Symmetric", 0, 3, 3, 3, -1, 1))
sketch8.addConstraint(Sketcher.Constraint("Symmetric", 0, 3, 1, 3, -2))
sketch8.addConstraint(Sketcher.Constraint("Diameter", 0, Q("10 mm")))
sketch8.addConstraint(Sketcher.Constraint("DistanceX", 0, 3, 1, 3, Q("180 mm")))
sketch8.addConstraint(Sketcher.Constraint("DistanceY", 2, 3, 0, 3, Q("230 mm")))
pocket4 = body.newObject("PartDesign::Pocket", "Pocket003")
pocket4.Profile = sketch8
pocket4.Type = "ThroughAll"
pocket4.Reversed = True

doc.recompute()
